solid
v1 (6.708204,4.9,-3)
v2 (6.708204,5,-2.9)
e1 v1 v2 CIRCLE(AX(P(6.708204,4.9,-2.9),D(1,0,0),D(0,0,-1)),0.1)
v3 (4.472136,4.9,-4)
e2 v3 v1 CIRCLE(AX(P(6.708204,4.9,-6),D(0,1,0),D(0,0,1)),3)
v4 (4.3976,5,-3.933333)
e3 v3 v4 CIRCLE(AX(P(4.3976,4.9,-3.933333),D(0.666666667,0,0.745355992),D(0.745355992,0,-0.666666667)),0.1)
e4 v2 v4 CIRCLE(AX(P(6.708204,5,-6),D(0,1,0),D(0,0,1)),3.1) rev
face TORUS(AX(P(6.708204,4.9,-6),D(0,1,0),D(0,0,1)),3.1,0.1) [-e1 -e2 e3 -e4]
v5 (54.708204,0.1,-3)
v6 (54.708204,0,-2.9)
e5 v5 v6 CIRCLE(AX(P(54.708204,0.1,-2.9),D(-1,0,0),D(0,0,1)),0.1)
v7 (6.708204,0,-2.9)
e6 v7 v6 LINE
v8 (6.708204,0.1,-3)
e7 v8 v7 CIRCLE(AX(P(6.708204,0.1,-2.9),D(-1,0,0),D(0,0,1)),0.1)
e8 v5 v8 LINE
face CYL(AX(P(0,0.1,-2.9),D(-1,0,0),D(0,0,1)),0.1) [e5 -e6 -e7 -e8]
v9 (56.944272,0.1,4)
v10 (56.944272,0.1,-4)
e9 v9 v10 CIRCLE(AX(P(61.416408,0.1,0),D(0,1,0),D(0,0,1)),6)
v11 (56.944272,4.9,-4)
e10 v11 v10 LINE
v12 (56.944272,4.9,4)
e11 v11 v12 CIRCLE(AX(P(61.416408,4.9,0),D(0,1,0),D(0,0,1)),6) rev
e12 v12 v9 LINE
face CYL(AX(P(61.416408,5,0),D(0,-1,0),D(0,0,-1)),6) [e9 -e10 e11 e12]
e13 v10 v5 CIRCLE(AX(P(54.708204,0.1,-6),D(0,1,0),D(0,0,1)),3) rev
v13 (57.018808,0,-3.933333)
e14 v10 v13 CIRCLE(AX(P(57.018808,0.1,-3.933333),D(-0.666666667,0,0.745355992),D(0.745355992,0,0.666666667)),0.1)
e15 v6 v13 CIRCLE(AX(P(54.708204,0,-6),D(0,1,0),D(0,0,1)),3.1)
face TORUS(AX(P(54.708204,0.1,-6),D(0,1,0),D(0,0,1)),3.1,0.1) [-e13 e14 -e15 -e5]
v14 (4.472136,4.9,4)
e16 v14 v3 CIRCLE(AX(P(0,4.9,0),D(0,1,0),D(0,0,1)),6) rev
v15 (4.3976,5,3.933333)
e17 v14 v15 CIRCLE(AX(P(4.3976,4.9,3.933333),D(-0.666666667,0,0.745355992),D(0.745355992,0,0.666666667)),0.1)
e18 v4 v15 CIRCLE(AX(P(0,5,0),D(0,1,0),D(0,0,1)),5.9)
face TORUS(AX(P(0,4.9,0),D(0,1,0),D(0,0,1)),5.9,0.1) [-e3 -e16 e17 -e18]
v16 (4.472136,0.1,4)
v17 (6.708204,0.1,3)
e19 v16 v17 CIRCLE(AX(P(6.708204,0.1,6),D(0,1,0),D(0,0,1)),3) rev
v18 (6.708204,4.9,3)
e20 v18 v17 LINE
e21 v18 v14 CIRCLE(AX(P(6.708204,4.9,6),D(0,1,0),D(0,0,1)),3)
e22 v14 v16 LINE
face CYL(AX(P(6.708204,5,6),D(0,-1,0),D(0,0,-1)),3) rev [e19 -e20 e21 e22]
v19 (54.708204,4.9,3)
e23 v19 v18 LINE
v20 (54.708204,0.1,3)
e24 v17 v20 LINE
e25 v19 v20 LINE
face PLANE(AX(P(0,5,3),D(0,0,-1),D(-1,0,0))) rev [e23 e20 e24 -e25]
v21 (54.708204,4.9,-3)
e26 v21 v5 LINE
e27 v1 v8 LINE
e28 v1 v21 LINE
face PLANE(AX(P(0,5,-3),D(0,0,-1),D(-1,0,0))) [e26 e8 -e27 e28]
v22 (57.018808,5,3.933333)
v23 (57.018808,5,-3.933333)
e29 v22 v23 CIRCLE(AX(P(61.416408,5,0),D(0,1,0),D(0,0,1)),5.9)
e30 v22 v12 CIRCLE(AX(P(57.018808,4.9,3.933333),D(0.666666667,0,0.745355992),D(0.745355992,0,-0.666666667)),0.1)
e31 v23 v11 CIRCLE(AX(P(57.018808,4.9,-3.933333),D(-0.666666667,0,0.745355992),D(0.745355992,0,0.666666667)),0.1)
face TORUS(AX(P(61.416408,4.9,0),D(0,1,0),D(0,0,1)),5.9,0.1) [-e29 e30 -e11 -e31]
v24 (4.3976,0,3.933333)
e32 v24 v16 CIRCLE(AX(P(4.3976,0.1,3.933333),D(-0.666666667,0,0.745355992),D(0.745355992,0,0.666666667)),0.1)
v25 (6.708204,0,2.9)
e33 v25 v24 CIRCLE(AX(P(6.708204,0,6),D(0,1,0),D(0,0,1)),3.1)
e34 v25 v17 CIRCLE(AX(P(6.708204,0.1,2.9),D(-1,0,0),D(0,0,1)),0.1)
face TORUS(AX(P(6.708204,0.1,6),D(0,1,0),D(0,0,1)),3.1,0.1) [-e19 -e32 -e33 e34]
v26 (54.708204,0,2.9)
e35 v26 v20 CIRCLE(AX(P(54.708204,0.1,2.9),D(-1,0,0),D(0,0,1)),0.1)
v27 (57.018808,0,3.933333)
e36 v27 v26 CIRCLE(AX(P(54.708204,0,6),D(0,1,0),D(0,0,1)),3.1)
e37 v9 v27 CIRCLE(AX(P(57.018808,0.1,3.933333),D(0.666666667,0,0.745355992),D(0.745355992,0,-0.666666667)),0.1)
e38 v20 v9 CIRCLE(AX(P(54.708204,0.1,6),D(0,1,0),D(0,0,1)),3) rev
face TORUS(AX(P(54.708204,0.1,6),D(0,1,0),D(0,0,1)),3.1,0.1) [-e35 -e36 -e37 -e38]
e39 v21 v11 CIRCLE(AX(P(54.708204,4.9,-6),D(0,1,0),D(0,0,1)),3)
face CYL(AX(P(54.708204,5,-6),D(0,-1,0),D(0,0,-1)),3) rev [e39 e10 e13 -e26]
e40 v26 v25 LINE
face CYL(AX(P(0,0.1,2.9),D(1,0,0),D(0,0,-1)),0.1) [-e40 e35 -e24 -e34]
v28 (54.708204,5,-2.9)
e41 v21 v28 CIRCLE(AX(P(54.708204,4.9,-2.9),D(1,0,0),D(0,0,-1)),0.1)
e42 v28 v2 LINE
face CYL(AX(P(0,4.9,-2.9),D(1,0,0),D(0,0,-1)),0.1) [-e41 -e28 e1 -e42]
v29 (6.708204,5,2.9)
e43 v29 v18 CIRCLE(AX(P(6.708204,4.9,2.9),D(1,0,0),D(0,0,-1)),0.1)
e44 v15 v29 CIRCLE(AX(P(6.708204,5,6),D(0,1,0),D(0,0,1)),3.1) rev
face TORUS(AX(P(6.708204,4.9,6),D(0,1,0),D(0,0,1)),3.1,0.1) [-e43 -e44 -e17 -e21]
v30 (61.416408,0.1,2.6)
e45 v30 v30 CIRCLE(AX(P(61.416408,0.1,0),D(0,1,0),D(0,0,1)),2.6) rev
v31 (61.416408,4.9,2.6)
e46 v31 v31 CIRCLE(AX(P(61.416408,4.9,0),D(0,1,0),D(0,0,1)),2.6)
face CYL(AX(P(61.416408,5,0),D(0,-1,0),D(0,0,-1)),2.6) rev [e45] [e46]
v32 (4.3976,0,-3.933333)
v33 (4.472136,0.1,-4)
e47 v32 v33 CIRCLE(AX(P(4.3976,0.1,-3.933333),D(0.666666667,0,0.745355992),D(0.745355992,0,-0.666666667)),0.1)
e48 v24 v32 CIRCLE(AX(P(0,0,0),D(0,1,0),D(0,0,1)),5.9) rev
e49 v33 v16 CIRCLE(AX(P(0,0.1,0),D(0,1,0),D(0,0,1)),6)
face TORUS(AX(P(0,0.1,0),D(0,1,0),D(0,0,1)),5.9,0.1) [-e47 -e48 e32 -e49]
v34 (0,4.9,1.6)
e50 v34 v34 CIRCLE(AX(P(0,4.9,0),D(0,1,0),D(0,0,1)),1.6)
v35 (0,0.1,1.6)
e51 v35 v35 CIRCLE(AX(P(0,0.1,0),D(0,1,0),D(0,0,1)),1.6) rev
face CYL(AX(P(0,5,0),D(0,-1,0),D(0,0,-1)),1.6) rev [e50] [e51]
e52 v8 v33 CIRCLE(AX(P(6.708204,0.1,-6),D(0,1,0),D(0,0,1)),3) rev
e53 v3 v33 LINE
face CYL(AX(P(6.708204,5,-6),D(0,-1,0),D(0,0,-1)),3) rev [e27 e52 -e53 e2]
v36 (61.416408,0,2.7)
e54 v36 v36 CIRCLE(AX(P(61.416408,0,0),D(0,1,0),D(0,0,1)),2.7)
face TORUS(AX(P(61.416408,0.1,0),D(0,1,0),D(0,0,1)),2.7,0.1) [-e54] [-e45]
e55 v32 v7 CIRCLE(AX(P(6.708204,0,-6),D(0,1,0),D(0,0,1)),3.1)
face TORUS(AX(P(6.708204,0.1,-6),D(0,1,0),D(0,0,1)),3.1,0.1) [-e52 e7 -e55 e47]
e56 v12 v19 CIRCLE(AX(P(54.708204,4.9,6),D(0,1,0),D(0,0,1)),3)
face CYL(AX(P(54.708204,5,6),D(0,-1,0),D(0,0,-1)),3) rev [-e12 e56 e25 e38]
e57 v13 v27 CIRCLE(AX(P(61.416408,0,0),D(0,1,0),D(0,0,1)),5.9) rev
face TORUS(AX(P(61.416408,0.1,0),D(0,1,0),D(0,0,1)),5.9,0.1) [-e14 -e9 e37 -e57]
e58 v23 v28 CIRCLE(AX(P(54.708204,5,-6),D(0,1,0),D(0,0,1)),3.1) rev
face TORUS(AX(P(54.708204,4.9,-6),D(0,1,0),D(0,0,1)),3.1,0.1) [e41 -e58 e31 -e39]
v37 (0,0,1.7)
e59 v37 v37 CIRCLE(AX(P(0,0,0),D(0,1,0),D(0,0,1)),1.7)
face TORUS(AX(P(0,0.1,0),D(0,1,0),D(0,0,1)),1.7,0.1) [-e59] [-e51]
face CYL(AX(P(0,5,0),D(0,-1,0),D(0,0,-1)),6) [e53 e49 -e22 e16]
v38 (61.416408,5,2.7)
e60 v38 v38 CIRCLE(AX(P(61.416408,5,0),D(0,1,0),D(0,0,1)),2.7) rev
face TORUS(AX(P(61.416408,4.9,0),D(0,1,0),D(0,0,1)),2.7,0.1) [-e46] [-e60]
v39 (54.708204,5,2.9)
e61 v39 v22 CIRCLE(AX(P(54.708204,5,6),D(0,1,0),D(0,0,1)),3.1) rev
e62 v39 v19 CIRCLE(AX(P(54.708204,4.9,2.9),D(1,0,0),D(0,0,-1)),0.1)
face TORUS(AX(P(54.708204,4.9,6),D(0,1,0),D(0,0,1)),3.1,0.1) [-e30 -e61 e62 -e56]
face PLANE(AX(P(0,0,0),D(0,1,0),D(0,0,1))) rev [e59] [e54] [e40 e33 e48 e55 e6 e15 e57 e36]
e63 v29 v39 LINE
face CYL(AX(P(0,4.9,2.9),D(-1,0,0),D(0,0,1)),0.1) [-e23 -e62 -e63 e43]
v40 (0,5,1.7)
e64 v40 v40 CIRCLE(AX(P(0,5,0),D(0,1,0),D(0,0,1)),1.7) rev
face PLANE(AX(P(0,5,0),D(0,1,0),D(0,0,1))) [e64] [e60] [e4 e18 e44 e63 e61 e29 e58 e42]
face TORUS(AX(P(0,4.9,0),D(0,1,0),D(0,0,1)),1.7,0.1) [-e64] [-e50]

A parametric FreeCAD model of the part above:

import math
import FreeCAD as App
import Part
import Sketcher
from FreeCAD import Vector
Q = App.Units.Quantity


def edges_at(feature, points):
    """Names of the edges that pass closest to the given points."""
    edges = feature.Shape.Edges
    near = lambda p: min(range(len(edges)), key=lambda i: edges[i].distToShape(Part.Vertex(*p))[0])
    return sorted({f"Edge{near(p) + 1}" for p in points})

doc = App.newDocument("Part")
body = doc.addObject("PartDesign::Body", "Body")

# Sketch on XZ plane
sketch1 = doc.addObject("Sketcher::SketchObject", "Sketch")
body.addObject(sketch1)
sketch1.AttachmentSupport = (doc.XZ_Plane, [""])
sketch1.MapMode = "FlatFace"
sketch1.addGeometry([
    Part.LineSegment(Vector(54.7, -3, 0), Vector(6.7, -3, 0)),  # 0
    Part.ArcOfCircle(Part.Circle(Vector(6.7, -6, 0), Vector(0, 0, 1), 3), math.radians(90), math.radians(138)),  # 1
    Part.ArcOfCircle(Part.Circle(Vector(0, 0, 0), Vector(0, 0, 1), 6), math.radians(42), math.radians(318)),  # 2
    Part.ArcOfCircle(Part.Circle(Vector(6.7, 6, 0), Vector(0, 0, 1), 3), math.radians(-138), math.radians(-90)),  # 3
    Part.LineSegment(Vector(6.7, 3, 0), Vector(54.7, 3, 0)),  # 4
    Part.ArcOfCircle(Part.Circle(Vector(54.7, 6, 0), Vector(0, 0, 1), 3), math.radians(-90), math.radians(-42)),  # 5
    Part.ArcOfCircle(Part.Circle(Vector(61.4, 0, 0), Vector(0, 0, 1), 6), math.radians(-138), math.radians(138)),  # 6
    Part.ArcOfCircle(Part.Circle(Vector(54.7, -6, 0), Vector(0, 0, 1), 3), math.radians(42), math.radians(90)),  # 7
    Part.Circle(Vector(61.4, 0, 0), Vector(0, 0, 1), 2.6),  # 8
    Part.Circle(Vector(0, 0, 0), Vector(0, 0, 1), 1.6),  # 9
], False)
sketch1.addConstraint([
    Sketcher.Constraint("Tangent", 0, 2, 1, 1),
    Sketcher.Constraint("Tangent", 1, 2, 2, 2),
    Sketcher.Constraint("Tangent", 2, 1, 3, 1),
    Sketcher.Constraint("Tangent", 3, 2, 4, 1),
    Sketcher.Constraint("Tangent", 4, 2, 5, 1),
    Sketcher.Constraint("Tangent", 5, 2, 6, 2),
    Sketcher.Constraint("Tangent", 6, 1, 7, 1),
    Sketcher.Constraint("Tangent", 7, 2, 0, 1),
    Sketcher.Constraint("Horizontal", 0),
    Sketcher.Constraint("Horizontal", 4),
    Sketcher.Constraint("Coincident", 2, 3, -1, 1),
    Sketcher.Constraint("Coincident", 9, 3, -1, 1),
    Sketcher.Constraint("Coincident", 8, 3, 6, 3),
    Sketcher.Constraint("Equal", 1, 3),
    Sketcher.Constraint("Equal", 3, 5),
    Sketcher.Constraint("Equal", 2, 6),
    Sketcher.Constraint("Equal", 5, 7),
    Sketcher.Constraint("Symmetric", 5, 3, 7, 3, -1),
    Sketcher.Constraint("Radius", 1, Q("3 mm")),
    Sketcher.Constraint("Radius", 2, Q("6 mm")),
    Sketcher.Constraint("Diameter", 8, Q("5.2 mm")),
    Sketcher.Constraint("Diameter", 9, Q("3.2 mm")),
    Sketcher.Constraint("DistanceX", 0, 2, 0, 1, Q("48 mm")),
    Sketcher.Constraint("DistanceY", 1, 3, -1, 1, Q("6 mm")),
])
pad1 = doc.addObject("PartDesign::Pad", "Pad")
body.addObject(pad1)
pad1.Profile = sketch1
pad1.Length = 5
pad1.Reversed = True
doc.recompute()

fillet = doc.addObject("PartDesign::Fillet", "Fillet")
body.addObject(fillet)
fillet.Base = (pad1, edges_at(pad1, [
    (55.933, 0, -3.261),
    (67.416, 0, 0),
    (61.416, 5, -2.6),
    (55.933, 0, 3.261),
    (30.708, 0, 3),
    (5.483, 0, 3.261),
    (-6, 0, 0),
    (5.483, 0, -3.261),
    (30.708, 0, -3),
    (61.416, 0, -2.6),
    (0, 0, -1.6),
    (30.708, 5, -3),
    (5.483, 5, -3.261),
    (-6, 5, 0),
    (5.483, 5, 3.261),
    (30.708, 5, 3),
    (55.933, 5, 3.261),
    (67.416, 5, 0),
    (55.933, 5, -3.261),
    (0, 5, -1.6),
]))
fillet.Radius = 0.1

doc.recompute()
